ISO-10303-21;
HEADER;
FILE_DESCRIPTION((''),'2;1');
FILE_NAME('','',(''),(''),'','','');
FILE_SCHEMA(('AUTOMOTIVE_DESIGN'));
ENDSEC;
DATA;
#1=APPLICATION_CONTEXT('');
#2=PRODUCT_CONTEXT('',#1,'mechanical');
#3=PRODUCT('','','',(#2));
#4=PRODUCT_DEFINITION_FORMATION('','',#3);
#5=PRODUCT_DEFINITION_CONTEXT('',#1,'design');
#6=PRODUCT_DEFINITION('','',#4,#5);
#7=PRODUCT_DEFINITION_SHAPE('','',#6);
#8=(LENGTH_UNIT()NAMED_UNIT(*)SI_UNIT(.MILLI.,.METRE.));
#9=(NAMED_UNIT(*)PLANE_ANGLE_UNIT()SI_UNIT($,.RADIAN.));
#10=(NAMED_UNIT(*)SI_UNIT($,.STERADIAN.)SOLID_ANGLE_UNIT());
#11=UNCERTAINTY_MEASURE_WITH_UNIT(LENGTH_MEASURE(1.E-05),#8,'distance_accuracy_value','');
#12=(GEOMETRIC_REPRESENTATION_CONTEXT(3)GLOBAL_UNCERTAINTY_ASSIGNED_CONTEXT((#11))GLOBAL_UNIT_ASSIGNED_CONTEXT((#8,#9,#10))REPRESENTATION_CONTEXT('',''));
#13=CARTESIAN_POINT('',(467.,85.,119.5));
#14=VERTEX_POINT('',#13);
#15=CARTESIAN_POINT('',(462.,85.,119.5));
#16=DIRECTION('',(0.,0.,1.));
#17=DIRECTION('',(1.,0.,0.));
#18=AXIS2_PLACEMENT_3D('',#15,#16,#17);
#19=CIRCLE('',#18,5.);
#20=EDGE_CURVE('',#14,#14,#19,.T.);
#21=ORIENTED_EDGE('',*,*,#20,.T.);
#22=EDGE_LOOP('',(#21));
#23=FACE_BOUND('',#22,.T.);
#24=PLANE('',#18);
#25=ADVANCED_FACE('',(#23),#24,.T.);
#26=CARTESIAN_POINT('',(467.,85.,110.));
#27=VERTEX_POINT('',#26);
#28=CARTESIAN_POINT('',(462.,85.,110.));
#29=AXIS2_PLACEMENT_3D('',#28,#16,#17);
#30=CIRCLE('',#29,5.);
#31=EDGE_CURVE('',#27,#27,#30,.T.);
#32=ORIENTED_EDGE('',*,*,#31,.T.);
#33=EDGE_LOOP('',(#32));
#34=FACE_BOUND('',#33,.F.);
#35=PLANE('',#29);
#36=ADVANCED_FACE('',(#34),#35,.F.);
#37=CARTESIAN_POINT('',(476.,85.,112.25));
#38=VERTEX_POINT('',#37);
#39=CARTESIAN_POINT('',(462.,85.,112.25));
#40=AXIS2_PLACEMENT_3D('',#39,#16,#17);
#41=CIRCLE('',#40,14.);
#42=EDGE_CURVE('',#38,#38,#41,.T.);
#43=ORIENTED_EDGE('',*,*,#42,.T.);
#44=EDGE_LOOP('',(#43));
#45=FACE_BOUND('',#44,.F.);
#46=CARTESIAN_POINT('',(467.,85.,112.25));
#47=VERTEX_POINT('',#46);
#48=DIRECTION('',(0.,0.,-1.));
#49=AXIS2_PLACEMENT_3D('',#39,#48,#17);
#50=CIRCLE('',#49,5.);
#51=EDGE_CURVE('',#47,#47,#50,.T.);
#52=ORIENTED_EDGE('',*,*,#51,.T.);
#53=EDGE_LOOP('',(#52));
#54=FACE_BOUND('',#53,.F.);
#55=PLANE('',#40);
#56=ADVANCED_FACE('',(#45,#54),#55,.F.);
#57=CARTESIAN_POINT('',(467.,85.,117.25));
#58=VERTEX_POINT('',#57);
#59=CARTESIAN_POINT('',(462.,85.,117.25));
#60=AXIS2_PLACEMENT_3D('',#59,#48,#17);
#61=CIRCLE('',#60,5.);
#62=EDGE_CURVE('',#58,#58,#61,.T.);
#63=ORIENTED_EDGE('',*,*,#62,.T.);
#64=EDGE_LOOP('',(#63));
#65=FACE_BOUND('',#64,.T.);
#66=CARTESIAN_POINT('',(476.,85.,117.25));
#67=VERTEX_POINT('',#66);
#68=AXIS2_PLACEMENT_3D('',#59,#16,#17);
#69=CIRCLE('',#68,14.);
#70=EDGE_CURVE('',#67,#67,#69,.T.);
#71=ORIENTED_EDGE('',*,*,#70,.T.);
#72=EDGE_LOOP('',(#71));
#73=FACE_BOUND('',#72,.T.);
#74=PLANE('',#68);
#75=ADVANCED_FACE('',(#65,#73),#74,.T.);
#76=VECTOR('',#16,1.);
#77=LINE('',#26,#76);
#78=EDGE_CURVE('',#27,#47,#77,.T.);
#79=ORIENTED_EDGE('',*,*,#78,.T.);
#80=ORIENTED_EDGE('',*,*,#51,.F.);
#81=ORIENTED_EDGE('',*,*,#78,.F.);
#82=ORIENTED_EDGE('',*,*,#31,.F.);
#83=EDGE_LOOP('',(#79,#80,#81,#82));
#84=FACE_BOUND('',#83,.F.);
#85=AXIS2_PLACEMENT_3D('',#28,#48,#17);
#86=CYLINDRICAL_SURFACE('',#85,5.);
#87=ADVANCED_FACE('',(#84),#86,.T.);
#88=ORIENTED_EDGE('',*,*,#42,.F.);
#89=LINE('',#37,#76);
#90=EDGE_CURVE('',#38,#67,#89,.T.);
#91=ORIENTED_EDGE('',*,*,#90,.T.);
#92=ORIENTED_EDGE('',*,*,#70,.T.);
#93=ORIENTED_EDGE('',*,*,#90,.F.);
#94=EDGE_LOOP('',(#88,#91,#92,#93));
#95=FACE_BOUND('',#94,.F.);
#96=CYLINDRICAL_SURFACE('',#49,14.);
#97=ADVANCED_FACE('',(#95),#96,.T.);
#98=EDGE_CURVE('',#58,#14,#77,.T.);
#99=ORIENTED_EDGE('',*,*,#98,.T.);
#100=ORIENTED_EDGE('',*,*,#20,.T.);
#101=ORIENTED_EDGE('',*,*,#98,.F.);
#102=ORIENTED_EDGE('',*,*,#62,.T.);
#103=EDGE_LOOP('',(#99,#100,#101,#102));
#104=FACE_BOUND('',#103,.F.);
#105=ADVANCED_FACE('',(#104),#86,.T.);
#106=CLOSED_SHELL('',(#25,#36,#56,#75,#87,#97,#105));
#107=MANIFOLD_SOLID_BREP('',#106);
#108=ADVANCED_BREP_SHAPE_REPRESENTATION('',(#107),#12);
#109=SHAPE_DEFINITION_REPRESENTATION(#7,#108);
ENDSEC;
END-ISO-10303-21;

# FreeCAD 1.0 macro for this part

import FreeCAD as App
import Part
import Sketcher

doc = App.newDocument("Part")
body = doc.addObject("PartDesign::Body", "Body")

sketch1 = body.newObject("Sketcher::SketchObject", "Sketch")
sketch1.AttachmentSupport = (doc.getObject("XY_Plane"), [""])
sketch1.MapMode = "FlatFace"
sketch1.AttachmentOffset = App.Placement(App.Vector(0, 0, 142.75), App.Rotation())
sketch1.addGeometry(Part.Circle(App.Vector(462, 85, 0), App.Vector(0, 0, 1), 5), False)
sketch1.addConstraint([
    Sketcher.Constraint("Diameter", 0, 10.0),
    Sketcher.Constraint("DistanceX", -1, 1, 0, 3, 462.0),
    Sketcher.Constraint("DistanceY", -1, 1, 0, 3, 85.0),
])
pad1 = body.newObject("PartDesign::Pad", "Pad")
pad1.Profile = sketch1
pad1.Length = 9.5
body2 = doc.addObject("PartDesign::Body", "Body001")

sketch2 = body2.newObject("Sketcher::SketchObject", "Sketch001")
sketch2.AttachmentSupport = (doc.getObject("XY_Plane001"), [""])
sketch2.MapMode = "FlatFace"
sketch2.AttachmentOffset = App.Placement(App.Vector(0, 0, 145), App.Rotation())
sketch2.addGeometry(Part.Circle(App.Vector(462, 85, 0), App.Vector(0, 0, 1), 14), False)
sketch2.addConstraint([
    Sketcher.Constraint("Diameter", 0, 28.0),
    Sketcher.Constraint("DistanceX", -1, 1, 0, 3, 462.0),
    Sketcher.Constraint("DistanceY", -1, 1, 0, 3, 85.0),
])
pad2 = body2.newObject("PartDesign::Pad", "Pad001")
pad2.Profile = sketch2
pad2.Length = 5
doc.recompute()

boolean = body2.newObject("PartDesign::Boolean", "Boolean")
boolean.Type = "Fuse"
boolean.addObjects([body])
body3 = doc.addObject("PartDesign::Body", "Body002")
doc.recompute()

body2.Placement = App.Placement(App.Vector(0, 0, -32.75), App.Rotation(App.Vector(0, 0, 1), 0))
boolean2 = body3.newObject("PartDesign::Boolean", "Boolean001")
boolean2.Type = "Fuse"
boolean2.addObjects([body2])

doc.recompute()
